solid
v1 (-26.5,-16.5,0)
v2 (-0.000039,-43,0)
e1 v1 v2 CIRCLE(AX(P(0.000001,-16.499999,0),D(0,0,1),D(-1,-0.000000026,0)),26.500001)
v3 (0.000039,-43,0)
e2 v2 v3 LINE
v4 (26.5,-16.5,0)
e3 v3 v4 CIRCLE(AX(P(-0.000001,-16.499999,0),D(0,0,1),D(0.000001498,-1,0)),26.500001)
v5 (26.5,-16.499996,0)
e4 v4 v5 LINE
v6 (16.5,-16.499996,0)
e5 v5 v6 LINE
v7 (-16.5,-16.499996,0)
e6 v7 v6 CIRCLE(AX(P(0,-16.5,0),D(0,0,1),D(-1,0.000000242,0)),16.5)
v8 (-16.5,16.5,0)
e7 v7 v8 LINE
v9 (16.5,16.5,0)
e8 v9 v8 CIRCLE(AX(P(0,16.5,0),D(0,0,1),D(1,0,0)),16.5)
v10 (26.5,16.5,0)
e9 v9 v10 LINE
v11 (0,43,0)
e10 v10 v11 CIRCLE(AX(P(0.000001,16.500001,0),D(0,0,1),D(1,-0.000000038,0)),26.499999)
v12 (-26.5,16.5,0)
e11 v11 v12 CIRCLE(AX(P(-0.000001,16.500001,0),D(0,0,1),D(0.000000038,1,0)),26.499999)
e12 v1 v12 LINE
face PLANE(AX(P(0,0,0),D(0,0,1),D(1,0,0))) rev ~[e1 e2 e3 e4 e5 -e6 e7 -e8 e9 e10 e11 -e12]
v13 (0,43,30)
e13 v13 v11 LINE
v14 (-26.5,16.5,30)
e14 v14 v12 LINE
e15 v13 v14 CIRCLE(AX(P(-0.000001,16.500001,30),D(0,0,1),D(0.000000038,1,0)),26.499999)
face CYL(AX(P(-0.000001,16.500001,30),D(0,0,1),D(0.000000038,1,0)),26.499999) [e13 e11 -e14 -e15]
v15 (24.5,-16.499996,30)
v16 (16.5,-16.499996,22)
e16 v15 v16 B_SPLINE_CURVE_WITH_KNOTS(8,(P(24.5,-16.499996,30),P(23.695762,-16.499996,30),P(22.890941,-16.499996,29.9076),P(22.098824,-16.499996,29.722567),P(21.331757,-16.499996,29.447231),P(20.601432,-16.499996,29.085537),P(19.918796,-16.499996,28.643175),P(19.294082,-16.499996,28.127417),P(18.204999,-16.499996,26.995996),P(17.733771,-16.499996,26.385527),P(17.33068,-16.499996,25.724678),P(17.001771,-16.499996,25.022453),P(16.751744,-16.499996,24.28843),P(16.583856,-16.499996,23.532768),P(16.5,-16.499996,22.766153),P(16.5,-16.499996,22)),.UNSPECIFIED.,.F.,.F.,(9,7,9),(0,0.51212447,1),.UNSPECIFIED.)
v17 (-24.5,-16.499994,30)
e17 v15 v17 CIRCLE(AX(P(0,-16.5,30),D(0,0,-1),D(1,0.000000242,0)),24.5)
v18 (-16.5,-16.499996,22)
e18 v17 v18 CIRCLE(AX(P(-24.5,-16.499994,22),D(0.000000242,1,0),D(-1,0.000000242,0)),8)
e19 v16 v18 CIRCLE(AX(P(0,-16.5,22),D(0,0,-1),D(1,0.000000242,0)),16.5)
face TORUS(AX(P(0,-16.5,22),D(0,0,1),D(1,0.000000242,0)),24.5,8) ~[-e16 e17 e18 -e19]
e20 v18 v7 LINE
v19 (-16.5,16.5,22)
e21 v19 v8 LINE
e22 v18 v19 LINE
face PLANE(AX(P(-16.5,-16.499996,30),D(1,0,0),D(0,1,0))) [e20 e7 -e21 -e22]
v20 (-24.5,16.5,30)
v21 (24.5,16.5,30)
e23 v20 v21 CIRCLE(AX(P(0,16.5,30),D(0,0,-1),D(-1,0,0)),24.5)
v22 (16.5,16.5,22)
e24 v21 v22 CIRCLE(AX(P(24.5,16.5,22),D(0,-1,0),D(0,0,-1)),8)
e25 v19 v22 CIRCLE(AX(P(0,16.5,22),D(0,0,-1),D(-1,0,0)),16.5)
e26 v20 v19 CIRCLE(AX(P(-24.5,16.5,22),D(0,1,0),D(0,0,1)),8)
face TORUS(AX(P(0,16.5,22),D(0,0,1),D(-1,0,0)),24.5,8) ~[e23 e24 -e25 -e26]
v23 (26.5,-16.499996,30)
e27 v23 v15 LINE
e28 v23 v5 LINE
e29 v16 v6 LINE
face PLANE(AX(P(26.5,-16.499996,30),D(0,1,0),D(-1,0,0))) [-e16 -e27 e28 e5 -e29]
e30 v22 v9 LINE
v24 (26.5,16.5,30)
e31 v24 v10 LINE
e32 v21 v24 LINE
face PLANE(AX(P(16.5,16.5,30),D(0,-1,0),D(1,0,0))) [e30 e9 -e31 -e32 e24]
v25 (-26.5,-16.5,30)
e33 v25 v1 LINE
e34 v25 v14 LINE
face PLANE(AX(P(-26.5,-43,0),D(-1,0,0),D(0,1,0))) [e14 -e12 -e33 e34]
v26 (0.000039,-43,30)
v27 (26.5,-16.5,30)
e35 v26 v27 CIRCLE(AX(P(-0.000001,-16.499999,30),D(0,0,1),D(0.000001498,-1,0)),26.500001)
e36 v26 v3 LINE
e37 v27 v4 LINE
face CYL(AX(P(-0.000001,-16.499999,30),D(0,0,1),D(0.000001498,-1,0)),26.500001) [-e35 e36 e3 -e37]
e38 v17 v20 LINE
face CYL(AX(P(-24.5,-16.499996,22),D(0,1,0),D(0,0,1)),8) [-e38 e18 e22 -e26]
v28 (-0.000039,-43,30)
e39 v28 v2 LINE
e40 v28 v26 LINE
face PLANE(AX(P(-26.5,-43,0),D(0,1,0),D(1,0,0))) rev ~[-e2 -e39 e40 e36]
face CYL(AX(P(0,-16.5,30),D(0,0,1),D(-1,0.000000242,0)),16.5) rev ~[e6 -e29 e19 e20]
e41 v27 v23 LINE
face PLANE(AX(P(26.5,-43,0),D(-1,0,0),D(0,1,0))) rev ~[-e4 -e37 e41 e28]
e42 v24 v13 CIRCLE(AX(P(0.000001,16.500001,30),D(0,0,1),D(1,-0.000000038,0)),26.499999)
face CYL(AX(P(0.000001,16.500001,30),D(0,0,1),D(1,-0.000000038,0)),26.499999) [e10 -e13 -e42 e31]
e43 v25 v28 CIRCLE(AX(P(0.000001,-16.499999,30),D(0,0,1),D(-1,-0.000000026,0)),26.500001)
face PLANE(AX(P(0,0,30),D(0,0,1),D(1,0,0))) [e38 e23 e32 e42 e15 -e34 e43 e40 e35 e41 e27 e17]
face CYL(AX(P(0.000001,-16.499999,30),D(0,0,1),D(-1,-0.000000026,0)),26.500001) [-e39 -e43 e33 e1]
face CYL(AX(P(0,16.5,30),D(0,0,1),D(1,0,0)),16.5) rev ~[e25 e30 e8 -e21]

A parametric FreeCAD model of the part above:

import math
import FreeCAD as App
import Part
import Sketcher

V = App.Vector


def edges_at(feature, points):
    """Names of the edges that pass closest to the given points."""
    edges = feature.Shape.Edges
    near = lambda p: min(range(len(edges)), key=lambda i: edges[i].distToShape(Part.Vertex(*p))[0])
    return sorted({f"Edge{near(p) + 1}" for p in points})

doc = App.newDocument("Part")
body = doc.addObject("PartDesign::Body", "Body")

# Sketch on XY plane
sketch1 = body.newObject("Sketcher::SketchObject", "Sketch")
sketch1.AttachmentSupport = (doc.getObject("XY_Plane"), [""])
sketch1.MapMode = "FlatFace"
sketch1.addGeometry(Part.LineSegment(V(-26, 43, 0), V(-26, -43, 0)), False)
sketch1.addGeometry(Part.LineSegment(V(-26, -43, 0), V(26, -43, 0)), False)
sketch1.addGeometry(Part.LineSegment(V(26, -43, 0), V(26, 43, 0)), False)
sketch1.addGeometry(Part.LineSegment(V(26, 43, 0), V(-26, 43, 0)), False)
sketch1.addConstraint(Sketcher.Constraint("Coincident", 0, 2, 1, 1))
sketch1.addConstraint(Sketcher.Constraint("Coincident", 1, 2, 2, 1))
sketch1.addConstraint(Sketcher.Constraint("Coincident", 2, 2, 3, 1))
sketch1.addConstraint(Sketcher.Constraint("Coincident", 3, 2, 0, 1))
sketch1.addConstraint(Sketcher.Constraint("Vertical", 0))
sketch1.addConstraint(Sketcher.Constraint("Horizontal", 1))
sketch1.addConstraint(Sketcher.Constraint("Vertical", 2))
sketch1.addConstraint(Sketcher.Constraint("Horizontal", 3))
sketch1.addConstraint(Sketcher.Constraint("Symmetric", 0, 2, 2, 2, -1, 1))
sketch1.addConstraint(Sketcher.Constraint("DistanceX", 1, 1, 1, 2, 53.0))
sketch1.addConstraint(Sketcher.Constraint("DistanceY", 0, 2, 0, 1, 86.0))
pad1 = body.newObject("PartDesign::Pad", "Pad")
pad1.Profile = sketch1
pad1.Length = 30

# Sketch on XY plane
sketch2 = body.newObject("Sketcher::SketchObject", "Sketch001")
sketch2.AttachmentSupport = (doc.getObject("XY_Plane"), [""])
sketch2.MapMode = "FlatFace"
sketch2.AttachmentOffset = App.Placement(V(0, 0, 30), App.Rotation())
sketch2.addGeometry(Part.ArcOfCircle(Part.Circle(V(0, 16, 0), V(0, 0, 1), 16), math.radians(0), math.radians(180)), False)
sketch2.addGeometry(Part.LineSegment(V(-16, 16, 0), V(-16, -16, 0)), False)
sketch2.addGeometry(Part.ArcOfCircle(Part.Circle(V(0, -16, 0), V(0, 0, 1), 16), math.radians(180), math.radians(360)), False)
sketch2.addGeometry(Part.LineSegment(V(16, -16, 0), V(26, -16, 0)), False)
sketch2.addGeometry(Part.LineSegment(V(26, -16, 0), V(26, 16, 0)), False)
sketch2.addGeometry(Part.LineSegment(V(26, 16, 0), V(16, 16, 0)), False)
sketch2.addConstraint(Sketcher.Constraint("Tangent", 0, 2, 1, 1))
sketch2.addConstraint(Sketcher.Constraint("Tangent", 1, 2, 2, 1))
sketch2.addConstraint(Sketcher.Constraint("Coincident", 2, 2, 3, 1))
sketch2.addConstraint(Sketcher.Constraint("Coincident", 3, 2, 4, 1))
sketch2.addConstraint(Sketcher.Constraint("Coincident", 4, 2, 5, 1))
sketch2.addConstraint(Sketcher.Constraint("Coincident", 5, 2, 0, 1))
sketch2.addConstraint(Sketcher.Constraint("Vertical", 1))
sketch2.addConstraint(Sketcher.Constraint("Horizontal", 3))
sketch2.addConstraint(Sketcher.Constraint("Vertical", 4))
sketch2.addConstraint(Sketcher.Constraint("Horizontal", 5))
sketch2.addConstraint(Sketcher.Constraint("Equal", 0, 2))
sketch2.addConstraint(Sketcher.Constraint("Symmetric", 0, 3, 2, 3, -1, 1))
sketch2.addConstraint(Sketcher.Constraint("Horizontal", 1, 2, 2, 2))
sketch2.addConstraint(Sketcher.Constraint("Horizontal", 0, 2, 4, 2))
sketch2.addConstraint(Sketcher.Constraint("Radius", 0, 16.5))
sketch2.addConstraint(Sketcher.Constraint("DistanceX", 3, 1, 3, 2, 10.0))
sketch2.addConstraint(Sketcher.Constraint("DistanceY", 2, 3, 0, 3, 33.0))
pocket1 = body.newObject("PartDesign::Pocket", "Pocket")
pocket1.Profile = sketch2
pocket1.Length = 30

# Sketch on XY plane
sketch3 = body.newObject("Sketcher::SketchObject", "Sketch002")
sketch3.AttachmentSupport = (doc.getObject("XY_Plane"), [""])
sketch3.MapMode = "FlatFace"
sketch3.AttachmentOffset = App.Placement(V(0, 0, 30), App.Rotation())
sketch3.addGeometry(Part.ArcOfCircle(Part.Circle(V(0, 17, 0), V(0, 0, 1), 26), math.radians(90), math.radians(180)), False)
sketch3.addGeometry(Part.LineSegment(V(0, 43, 0), V(-26, 43, 0)), False)
sketch3.addGeometry(Part.LineSegment(V(-26, 43, 0), V(-26, 16, 0)), False)
sketch3.addConstraint(Sketcher.Constraint("Tangent", 0, 1, 1, 1))
sketch3.addConstraint(Sketcher.Constraint("Coincident", 1, 2, 2, 1))
sketch3.addConstraint(Sketcher.Constraint("Tangent", 2, 2, 0, 2))
sketch3.addConstraint(Sketcher.Constraint("Horizontal", 1))
sketch3.addConstraint(Sketcher.Constraint("Vertical", 2))
sketch3.addConstraint(Sketcher.Constraint("PointOnObject", 0, 3, -2))
sketch3.addConstraint(Sketcher.Constraint("Radius", 0, 26.499999))
sketch3.addConstraint(Sketcher.Constraint("DistanceY", -1, 1, 0, 1, 43.0))
pocket2 = body.newObject("PartDesign::Pocket", "Pocket001")
pocket2.Profile = sketch3
pocket2.Length = 30

# Sketch on XY plane
sketch4 = body.newObject("Sketcher::SketchObject", "Sketch003")
sketch4.AttachmentSupport = (doc.getObject("XY_Plane"), [""])
sketch4.MapMode = "FlatFace"
sketch4.AttachmentOffset = App.Placement(V(0, 0, 30), App.Rotation())
sketch4.addGeometry(Part.ArcOfCircle(Part.Circle(V(0, 17, 0), V(0, 0, 1), 26), math.radians(0), math.radians(90)), False)
sketch4.addGeometry(Part.LineSegment(V(26, 16, 0), V(26, 43, 0)), False)
sketch4.addGeometry(Part.LineSegment(V(26, 43, 0), V(0, 43, 0)), False)
sketch4.addConstraint(Sketcher.Constraint("Tangent", 0, 1, 1, 1))
sketch4.addConstraint(Sketcher.Constraint("Coincident", 1, 2, 2, 1))
sketch4.addConstraint(Sketcher.Constraint("Tangent", 2, 2, 0, 2))
sketch4.addConstraint(Sketcher.Constraint("Vertical", 1))
sketch4.addConstraint(Sketcher.Constraint("Horizontal", 2))
sketch4.addConstraint(Sketcher.Constraint("PointOnObject", 0, 3, -2))
sketch4.addConstraint(Sketcher.Constraint("Radius", 0, 26.499999))
sketch4.addConstraint(Sketcher.Constraint("DistanceY", -1, 1, 1, 2, 43.0))
pocket3 = body.newObject("PartDesign::Pocket", "Pocket002")
pocket3.Profile = sketch4
pocket3.Length = 30

# Sketch on XY plane
sketch5 = body.newObject("Sketcher::SketchObject", "Sketch004")
sketch5.AttachmentSupport = (doc.getObject("XY_Plane"), [""])
sketch5.MapMode = "FlatFace"
sketch5.AttachmentOffset = App.Placement(V(0, 0, 30), App.Rotation())
sketch5.addGeometry(Part.ArcOfCircle(Part.Circle(V(0.000001, -16.499999, 0), V(0, 0, 1), 26.500001), math.radians(-179.999999), math.radians(-90.000086)), False)
sketch5.addGeometry(Part.LineSegment(V(-26.5, -16.5, 0), V(-26.5, -43, 0)), False)
sketch5.addGeometry(Part.LineSegment(V(-26.5, -43, 0), V(-0.000039, -43, 0)), False)
sketch5.addConstraint(Sketcher.Constraint("Coincident", 0, 1, 1, 1))
sketch5.addConstraint(Sketcher.Constraint("Coincident", 1, 2, 2, 1))
sketch5.addConstraint(Sketcher.Constraint("Coincident", 2, 2, 0, 2))
sketch5.addConstraint(Sketcher.Constraint("Vertical", 1))
sketch5.addConstraint(Sketcher.Constraint("Horizontal", 2))
sketch5.addConstraint(Sketcher.Constraint("PointOnObject", 0, 3, -2))
sketch5.addConstraint(Sketcher.Constraint("Radius", 0, 26.500001))
sketch5.addConstraint(Sketcher.Constraint("DistanceY", 1, 2, 1, 1, 26.5))
sketch5.addConstraint(Sketcher.Constraint("DistanceY", 1, 2, -1, 1, 43.0))
sketch5.addConstraint(Sketcher.Constraint("DistanceX", 2, 1, 2, 2, 26.499961))
pocket4 = body.newObject("PartDesign::Pocket", "Pocket003")
pocket4.Profile = sketch5
pocket4.Length = 30

# Sketch on XY plane
sketch6 = body.newObject("Sketcher::SketchObject", "Sketch005")
sketch6.AttachmentSupport = (doc.getObject("XY_Plane"), [""])
sketch6.MapMode = "FlatFace"
sketch6.AttachmentOffset = App.Placement(V(0, 0, 30), App.Rotation())
sketch6.addGeometry(Part.ArcOfCircle(Part.Circle(V(-0.000001, -16.499999, 0), V(0, 0, 1), 26.500001), math.radians(-89.999914), math.radians(-0.000001)), False)
sketch6.addGeometry(Part.LineSegment(V(0.000039, -43, 0), V(26.5, -43, 0)), False)
sketch6.addGeometry(Part.LineSegment(V(26.5, -43, 0), V(26.5, -16.5, 0)), False)
sketch6.addConstraint(Sketcher.Constraint("Coincident", 0, 1, 1, 1))
sketch6.addConstraint(Sketcher.Constraint("Coincident", 1, 2, 2, 1))
sketch6.addConstraint(Sketcher.Constraint("Coincident", 2, 2, 0, 2))
sketch6.addConstraint(Sketcher.Constraint("Horizontal", 1))
sketch6.addConstraint(Sketcher.Constraint("Vertical", 2))
sketch6.addConstraint(Sketcher.Constraint("PointOnObject", 0, 3, -2))
sketch6.addConstraint(Sketcher.Constraint("Radius", 0, 26.500001))
sketch6.addConstraint(Sketcher.Constraint("DistanceY", 2, 1, 2, 2, 26.5))
sketch6.addConstraint(Sketcher.Constraint("DistanceY", 0, 1, -1, 1, 43.0))
sketch6.addConstraint(Sketcher.Constraint("DistanceX", 1, 1, 1, 2, 26.499961))
pocket5 = body.newObject("PartDesign::Pocket", "Pocket004")
pocket5.Profile = sketch6
pocket5.Length = 30
doc.recompute()

fillet = body.newObject("PartDesign::Fillet", "Fillet")
fillet.Base = (pocket5, edges_at(pocket5, [(-16.5, 0, 30)]))
fillet.Radius = 8

doc.recompute()
